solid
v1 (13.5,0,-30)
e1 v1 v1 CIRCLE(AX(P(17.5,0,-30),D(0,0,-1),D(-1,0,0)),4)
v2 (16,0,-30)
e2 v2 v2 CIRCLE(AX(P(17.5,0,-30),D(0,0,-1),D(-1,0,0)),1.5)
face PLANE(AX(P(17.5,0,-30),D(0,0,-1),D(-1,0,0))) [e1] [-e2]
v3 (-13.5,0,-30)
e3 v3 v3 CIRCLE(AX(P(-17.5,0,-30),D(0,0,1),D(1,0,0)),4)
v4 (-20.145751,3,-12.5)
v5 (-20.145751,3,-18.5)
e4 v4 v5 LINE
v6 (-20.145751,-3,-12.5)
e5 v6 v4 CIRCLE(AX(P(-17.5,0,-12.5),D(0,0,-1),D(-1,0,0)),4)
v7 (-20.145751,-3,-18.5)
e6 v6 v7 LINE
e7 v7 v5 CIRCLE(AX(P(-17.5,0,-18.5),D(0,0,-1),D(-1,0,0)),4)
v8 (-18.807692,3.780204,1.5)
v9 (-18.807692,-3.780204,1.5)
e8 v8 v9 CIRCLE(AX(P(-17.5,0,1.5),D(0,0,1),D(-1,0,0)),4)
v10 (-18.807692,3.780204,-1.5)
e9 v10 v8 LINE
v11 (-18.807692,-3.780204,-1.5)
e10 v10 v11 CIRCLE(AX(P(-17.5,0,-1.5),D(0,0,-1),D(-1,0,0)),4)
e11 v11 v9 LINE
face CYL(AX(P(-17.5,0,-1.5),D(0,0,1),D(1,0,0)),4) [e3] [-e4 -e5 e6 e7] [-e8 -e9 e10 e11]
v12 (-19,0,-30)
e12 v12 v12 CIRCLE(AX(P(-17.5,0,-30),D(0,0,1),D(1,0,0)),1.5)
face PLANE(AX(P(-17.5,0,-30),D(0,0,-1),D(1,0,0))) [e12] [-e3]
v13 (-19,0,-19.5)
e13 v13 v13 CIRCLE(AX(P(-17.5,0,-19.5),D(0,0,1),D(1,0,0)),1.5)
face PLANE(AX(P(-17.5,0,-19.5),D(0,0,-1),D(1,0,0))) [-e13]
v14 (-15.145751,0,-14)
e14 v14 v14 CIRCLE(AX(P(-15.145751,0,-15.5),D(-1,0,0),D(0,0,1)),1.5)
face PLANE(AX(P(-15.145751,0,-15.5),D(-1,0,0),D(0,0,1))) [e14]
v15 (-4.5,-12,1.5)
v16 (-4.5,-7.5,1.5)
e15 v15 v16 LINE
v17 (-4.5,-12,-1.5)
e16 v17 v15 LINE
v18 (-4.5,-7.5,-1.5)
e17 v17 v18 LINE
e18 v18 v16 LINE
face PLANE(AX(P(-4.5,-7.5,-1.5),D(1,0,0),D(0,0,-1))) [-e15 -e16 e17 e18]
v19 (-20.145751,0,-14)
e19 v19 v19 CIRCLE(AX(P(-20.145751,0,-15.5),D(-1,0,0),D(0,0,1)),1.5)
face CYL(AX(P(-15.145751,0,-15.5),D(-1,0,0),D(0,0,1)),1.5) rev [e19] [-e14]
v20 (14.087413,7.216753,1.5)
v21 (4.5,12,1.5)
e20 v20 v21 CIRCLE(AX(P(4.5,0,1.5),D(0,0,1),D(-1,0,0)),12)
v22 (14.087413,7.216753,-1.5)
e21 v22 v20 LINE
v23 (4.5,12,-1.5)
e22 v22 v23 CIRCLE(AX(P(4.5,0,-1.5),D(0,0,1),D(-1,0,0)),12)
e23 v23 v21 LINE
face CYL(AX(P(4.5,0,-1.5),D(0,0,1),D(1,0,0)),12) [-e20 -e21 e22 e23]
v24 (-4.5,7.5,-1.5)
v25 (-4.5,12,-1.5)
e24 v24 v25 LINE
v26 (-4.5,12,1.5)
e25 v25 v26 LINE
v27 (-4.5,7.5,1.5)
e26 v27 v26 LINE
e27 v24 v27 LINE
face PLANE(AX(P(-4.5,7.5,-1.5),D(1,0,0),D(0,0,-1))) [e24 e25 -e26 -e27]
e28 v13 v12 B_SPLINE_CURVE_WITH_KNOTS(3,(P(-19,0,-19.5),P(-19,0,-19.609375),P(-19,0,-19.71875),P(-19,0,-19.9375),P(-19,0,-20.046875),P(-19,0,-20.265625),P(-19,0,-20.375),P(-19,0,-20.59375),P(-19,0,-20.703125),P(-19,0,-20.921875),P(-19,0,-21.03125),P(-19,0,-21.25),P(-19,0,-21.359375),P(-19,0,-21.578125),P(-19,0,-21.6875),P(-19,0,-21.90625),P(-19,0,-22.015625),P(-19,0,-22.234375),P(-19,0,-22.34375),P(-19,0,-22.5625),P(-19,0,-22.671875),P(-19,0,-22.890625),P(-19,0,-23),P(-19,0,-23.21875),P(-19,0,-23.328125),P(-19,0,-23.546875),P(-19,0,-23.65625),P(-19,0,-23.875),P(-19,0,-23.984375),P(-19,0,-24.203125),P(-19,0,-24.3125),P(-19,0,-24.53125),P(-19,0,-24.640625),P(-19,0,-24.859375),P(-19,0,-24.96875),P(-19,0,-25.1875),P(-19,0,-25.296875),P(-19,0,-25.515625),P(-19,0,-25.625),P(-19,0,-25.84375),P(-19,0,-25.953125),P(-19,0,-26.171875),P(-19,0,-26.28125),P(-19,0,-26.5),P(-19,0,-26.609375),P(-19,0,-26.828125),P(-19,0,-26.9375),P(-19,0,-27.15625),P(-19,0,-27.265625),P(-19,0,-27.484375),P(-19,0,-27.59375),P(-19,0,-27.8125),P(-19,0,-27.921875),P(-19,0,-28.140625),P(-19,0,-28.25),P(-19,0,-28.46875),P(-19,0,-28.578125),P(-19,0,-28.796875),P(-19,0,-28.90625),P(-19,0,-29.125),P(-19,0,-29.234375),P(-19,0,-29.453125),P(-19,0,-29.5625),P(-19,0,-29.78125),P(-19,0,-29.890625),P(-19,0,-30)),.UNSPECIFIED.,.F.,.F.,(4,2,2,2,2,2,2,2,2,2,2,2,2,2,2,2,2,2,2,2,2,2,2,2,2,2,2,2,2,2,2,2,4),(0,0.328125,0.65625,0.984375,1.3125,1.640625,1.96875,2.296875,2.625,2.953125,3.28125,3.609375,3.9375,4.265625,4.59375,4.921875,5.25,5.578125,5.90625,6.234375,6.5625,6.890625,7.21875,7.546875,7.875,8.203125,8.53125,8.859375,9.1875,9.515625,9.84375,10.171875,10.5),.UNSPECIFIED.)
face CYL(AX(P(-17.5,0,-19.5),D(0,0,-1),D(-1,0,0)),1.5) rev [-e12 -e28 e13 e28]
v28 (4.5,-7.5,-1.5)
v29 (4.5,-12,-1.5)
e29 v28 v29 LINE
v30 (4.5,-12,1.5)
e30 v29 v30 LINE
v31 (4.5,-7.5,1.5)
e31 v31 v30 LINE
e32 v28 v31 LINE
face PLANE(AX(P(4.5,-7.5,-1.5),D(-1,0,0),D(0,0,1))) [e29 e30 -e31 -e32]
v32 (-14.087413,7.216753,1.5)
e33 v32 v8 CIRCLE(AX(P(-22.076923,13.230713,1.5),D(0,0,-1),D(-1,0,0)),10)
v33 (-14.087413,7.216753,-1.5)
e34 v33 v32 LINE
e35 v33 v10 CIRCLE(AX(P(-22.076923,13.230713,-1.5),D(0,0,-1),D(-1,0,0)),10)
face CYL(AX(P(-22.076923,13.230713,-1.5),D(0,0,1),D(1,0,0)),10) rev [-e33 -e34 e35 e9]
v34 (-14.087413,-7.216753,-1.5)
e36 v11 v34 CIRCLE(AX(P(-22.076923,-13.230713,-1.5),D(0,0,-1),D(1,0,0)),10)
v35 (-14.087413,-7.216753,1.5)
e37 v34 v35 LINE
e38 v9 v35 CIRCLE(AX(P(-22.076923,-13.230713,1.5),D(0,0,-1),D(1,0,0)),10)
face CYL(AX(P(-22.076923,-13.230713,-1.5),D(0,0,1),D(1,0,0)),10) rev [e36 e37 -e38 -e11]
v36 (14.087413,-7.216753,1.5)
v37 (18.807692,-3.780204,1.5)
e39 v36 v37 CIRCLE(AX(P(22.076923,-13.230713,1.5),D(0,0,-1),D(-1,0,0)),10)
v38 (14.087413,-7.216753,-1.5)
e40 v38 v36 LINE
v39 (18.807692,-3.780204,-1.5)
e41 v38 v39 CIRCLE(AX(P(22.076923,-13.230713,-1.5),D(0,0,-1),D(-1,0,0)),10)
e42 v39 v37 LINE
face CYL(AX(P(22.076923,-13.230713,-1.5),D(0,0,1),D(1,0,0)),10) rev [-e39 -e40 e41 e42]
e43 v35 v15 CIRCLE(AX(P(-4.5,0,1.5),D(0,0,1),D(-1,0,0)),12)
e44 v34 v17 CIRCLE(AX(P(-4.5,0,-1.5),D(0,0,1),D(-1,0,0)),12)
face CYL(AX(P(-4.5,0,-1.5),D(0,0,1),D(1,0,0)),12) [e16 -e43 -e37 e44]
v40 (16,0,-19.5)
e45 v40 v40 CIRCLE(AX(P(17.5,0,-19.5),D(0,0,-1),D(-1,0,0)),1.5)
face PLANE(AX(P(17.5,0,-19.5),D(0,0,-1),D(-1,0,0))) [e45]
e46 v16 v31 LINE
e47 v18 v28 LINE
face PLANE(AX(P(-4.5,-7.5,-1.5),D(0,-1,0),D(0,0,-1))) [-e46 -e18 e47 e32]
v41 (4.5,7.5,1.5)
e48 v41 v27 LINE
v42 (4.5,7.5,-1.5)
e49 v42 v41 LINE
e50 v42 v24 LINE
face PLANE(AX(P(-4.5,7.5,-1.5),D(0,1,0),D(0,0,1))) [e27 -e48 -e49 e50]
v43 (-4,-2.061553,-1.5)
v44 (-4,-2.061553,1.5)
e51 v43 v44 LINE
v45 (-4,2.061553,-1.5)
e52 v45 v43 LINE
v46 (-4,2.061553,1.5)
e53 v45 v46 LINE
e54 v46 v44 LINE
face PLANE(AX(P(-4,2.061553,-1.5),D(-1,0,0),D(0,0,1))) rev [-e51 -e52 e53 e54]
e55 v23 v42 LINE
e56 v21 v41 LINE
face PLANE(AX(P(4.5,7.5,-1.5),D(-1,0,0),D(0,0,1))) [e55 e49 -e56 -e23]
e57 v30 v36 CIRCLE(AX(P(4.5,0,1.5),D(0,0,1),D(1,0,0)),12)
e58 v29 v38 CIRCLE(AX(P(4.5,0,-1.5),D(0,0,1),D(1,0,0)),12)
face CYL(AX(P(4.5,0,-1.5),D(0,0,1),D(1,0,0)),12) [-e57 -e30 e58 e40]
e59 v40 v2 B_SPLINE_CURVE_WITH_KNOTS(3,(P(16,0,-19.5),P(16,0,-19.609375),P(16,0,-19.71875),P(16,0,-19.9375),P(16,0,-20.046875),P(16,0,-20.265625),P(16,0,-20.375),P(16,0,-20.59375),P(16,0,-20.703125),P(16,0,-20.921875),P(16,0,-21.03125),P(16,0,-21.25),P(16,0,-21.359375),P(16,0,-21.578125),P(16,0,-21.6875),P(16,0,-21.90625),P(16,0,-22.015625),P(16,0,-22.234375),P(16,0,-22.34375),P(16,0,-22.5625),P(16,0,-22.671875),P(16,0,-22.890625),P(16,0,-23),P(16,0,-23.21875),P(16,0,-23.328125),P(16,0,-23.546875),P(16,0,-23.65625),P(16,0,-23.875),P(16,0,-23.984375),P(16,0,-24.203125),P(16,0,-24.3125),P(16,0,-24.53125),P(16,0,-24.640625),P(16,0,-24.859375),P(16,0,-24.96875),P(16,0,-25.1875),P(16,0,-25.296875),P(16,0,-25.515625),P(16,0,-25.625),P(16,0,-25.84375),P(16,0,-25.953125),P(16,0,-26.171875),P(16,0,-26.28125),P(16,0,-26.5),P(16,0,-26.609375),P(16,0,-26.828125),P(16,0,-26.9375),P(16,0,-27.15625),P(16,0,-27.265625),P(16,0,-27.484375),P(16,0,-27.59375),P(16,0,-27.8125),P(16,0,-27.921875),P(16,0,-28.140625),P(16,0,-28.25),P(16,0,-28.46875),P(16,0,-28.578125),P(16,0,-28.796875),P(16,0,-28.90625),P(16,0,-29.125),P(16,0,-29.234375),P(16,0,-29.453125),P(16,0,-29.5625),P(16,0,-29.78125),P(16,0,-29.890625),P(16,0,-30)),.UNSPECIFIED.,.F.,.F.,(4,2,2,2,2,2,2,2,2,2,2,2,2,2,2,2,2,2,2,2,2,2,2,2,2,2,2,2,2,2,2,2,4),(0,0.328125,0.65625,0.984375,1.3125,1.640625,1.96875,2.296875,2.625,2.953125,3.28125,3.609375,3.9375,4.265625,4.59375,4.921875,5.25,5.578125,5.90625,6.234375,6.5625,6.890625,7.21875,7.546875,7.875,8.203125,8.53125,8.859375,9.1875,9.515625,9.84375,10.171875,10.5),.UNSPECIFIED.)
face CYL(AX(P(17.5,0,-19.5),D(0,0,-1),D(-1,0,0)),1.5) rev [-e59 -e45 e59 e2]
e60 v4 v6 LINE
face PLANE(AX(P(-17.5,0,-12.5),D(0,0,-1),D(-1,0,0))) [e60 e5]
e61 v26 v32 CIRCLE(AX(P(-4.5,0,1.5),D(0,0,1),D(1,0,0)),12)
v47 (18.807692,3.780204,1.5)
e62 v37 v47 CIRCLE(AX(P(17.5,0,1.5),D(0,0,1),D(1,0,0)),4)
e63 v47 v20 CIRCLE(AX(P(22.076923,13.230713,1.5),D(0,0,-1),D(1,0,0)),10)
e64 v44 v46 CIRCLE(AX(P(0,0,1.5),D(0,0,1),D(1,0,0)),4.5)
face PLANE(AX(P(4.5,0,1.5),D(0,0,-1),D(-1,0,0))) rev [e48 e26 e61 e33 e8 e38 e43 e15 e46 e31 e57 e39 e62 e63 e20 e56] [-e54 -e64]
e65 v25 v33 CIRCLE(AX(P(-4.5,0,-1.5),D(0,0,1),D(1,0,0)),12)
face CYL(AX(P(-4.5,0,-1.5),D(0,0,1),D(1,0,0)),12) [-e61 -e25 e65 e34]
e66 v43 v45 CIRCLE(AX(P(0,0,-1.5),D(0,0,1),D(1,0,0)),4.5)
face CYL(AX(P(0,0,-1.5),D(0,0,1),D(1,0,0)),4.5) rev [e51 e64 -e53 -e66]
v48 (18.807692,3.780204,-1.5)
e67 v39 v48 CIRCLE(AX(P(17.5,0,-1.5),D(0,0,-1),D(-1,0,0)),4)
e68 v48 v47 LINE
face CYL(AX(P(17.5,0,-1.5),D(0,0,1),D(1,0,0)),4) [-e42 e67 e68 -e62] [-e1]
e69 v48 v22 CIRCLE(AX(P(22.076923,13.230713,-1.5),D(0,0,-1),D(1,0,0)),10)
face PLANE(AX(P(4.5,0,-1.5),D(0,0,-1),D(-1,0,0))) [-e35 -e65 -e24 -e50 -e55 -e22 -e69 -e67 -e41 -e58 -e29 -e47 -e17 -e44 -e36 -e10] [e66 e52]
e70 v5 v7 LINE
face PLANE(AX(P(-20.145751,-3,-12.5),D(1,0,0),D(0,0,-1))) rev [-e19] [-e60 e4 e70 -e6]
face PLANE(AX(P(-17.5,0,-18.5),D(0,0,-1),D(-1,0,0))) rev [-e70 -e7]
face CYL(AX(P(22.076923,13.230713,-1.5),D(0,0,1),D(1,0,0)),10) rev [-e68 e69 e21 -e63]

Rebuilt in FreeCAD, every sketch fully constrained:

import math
import FreeCAD as App
import Part
import Sketcher
from FreeCAD import Vector

doc = App.newDocument("Part")
params = doc.addObject("Spreadsheet::Sheet", "Params")
for row, (alias, value) in enumerate([
    ("sketch1_radius", "12 mm"),
    ("sketch1_radius2", "10 mm"),
    ("sketch1_radius3", "4 mm"),
    ("sketch1_width", "9 mm"),
    ("sketch1_height", "4.5 mm"),
    ("pad1_length", "3 mm"),
    ("sketch2_radius", "4.5 mm"),
    ("sketch3_diameter", "8 mm"),
    ("pad2_length", "28.5 mm"),
    ("sketch4_diameter", "3 mm"),
    ("pocket2_length", "10.5 mm"),
    ("sketch5_radius", "4 mm"),
    ("sketch5_height", "6 mm"),
    ("pocket3_length", "6 mm"),
    ("sketch6_diameter", "3 mm"),
    ("pocket4_length", "5 mm"),
], start=1):
    params.set(f"A{row}", alias)
    params.set(f"B{row}", "=" + value)
    params.setAlias(f"B{row}", alias)

body = doc.addObject("PartDesign::Body", "Body")

sketch1 = body.newObject("Sketcher::SketchObject", "Sketch")
sketch1.AttachmentSupport = (doc.getObject("XY_Plane"), [""])
sketch1.MapMode = "FlatFace"
sketch1.addGeometry(Part.LineSegment(Vector(4.5, 7.5, 0), Vector(-4.5, 7.5, 0)), False)
sketch1.addGeometry(Part.LineSegment(Vector(-4.5, 7.5, 0), Vector(-4.5, 12, 0)), False)
sketch1.addGeometry(Part.ArcOfCircle(Part.Circle(Vector(-4.5, 0, 0), Vector(0, 0, 1), 12), math.radians(90), math.radians(143)), False)
sketch1.addGeometry(Part.ArcOfCircle(Part.Circle(Vector(-22.1, 13.2, 0), Vector(0, 0, 1), 10), math.radians(-71), math.radians(-37)), False)
sketch1.addGeometry(Part.ArcOfCircle(Part.Circle(Vector(-17.5, 0, 0), Vector(0, 0, 1), 4), math.radians(109), math.radians(251)), False)
sketch1.addGeometry(Part.ArcOfCircle(Part.Circle(Vector(-22.1, -13.2, 0), Vector(0, 0, 1), 10), math.radians(37), math.radians(71)), False)
sketch1.addGeometry(Part.ArcOfCircle(Part.Circle(Vector(-4.5, 0, 0), Vector(0, 0, 1), 12), math.radians(-143), math.radians(-90)), False)
sketch1.addGeometry(Part.LineSegment(Vector(-4.5, -12, 0), Vector(-4.5, -7.5, 0)), False)
sketch1.addGeometry(Part.LineSegment(Vector(-4.5, -7.5, 0), Vector(4.5, -7.5, 0)), False)
sketch1.addGeometry(Part.LineSegment(Vector(4.5, -7.5, 0), Vector(4.5, -12, 0)), False)
sketch1.addGeometry(Part.ArcOfCircle(Part.Circle(Vector(4.5, 0, 0), Vector(0, 0, 1), 12), math.radians(-90), math.radians(-37)), False)
sketch1.addGeometry(Part.ArcOfCircle(Part.Circle(Vector(22.1, -13.2, 0), Vector(0, 0, 1), 10), math.radians(109), math.radians(143)), False)
sketch1.addGeometry(Part.ArcOfCircle(Part.Circle(Vector(17.5, 0, 0), Vector(0, 0, 1), 4), math.radians(-71), math.radians(71)), False)
sketch1.addGeometry(Part.ArcOfCircle(Part.Circle(Vector(22.1, 13.2, 0), Vector(0, 0, 1), 10), math.radians(-143), math.radians(-109)), False)
sketch1.addGeometry(Part.ArcOfCircle(Part.Circle(Vector(4.5, 0, 0), Vector(0, 0, 1), 12), math.radians(37), math.radians(90)), False)
sketch1.addGeometry(Part.LineSegment(Vector(4.5, 12, 0), Vector(4.5, 7.5, 0)), False)
sketch1.addConstraint(Sketcher.Constraint("Coincident", 0, 2, 1, 1))
sketch1.addConstraint(Sketcher.Constraint("Coincident", 1, 2, 2, 1))
sketch1.addConstraint(Sketcher.Constraint("Tangent", 2, 2, 3, 2))
sketch1.addConstraint(Sketcher.Constraint("Tangent", 3, 1, 4, 1))
sketch1.addConstraint(Sketcher.Constraint("Tangent", 4, 2, 5, 2))
sketch1.addConstraint(Sketcher.Constraint("Tangent", 5, 1, 6, 1))
sketch1.addConstraint(Sketcher.Constraint("Coincident", 6, 2, 7, 1))
sketch1.addConstraint(Sketcher.Constraint("Coincident", 7, 2, 8, 1))
sketch1.addConstraint(Sketcher.Constraint("Coincident", 8, 2, 9, 1))
sketch1.addConstraint(Sketcher.Constraint("Coincident", 9, 2, 10, 1))
sketch1.addConstraint(Sketcher.Constraint("Tangent", 10, 2, 11, 2))
sketch1.addConstraint(Sketcher.Constraint("Tangent", 11, 1, 12, 1))
sketch1.addConstraint(Sketcher.Constraint("Tangent", 12, 2, 13, 2))
sketch1.addConstraint(Sketcher.Constraint("Tangent", 13, 1, 14, 1))
sketch1.addConstraint(Sketcher.Constraint("Coincident", 14, 2, 15, 1))
sketch1.addConstraint(Sketcher.Constraint("Coincident", 15, 2, 0, 1))
sketch1.addConstraint(Sketcher.Constraint("Horizontal", 0))
sketch1.addConstraint(Sketcher.Constraint("Vertical", 1))
sketch1.addConstraint(Sketcher.Constraint("Vertical", 7))
sketch1.addConstraint(Sketcher.Constraint("Horizontal", 8))
sketch1.addConstraint(Sketcher.Constraint("Vertical", 9))
sketch1.addConstraint(Sketcher.Constraint("Vertical", 15))
sketch1.addConstraint(Sketcher.Constraint("Coincident", 6, 3, 2, 3))
sketch1.addConstraint(Sketcher.Constraint("Coincident", 14, 3, 10, 3))
sketch1.addConstraint(Sketcher.Constraint("Equal", 3, 5))
sketch1.addConstraint(Sketcher.Constraint("Equal", 2, 6))
sketch1.addConstraint(Sketcher.Constraint("Equal", 6, 10))
sketch1.addConstraint(Sketcher.Constraint("Equal", 5, 11))
sketch1.addConstraint(Sketcher.Constraint("Equal", 4, 12))
sketch1.addConstraint(Sketcher.Constraint("Equal", 11, 13))
sketch1.addConstraint(Sketcher.Constraint("Equal", 10, 14))
sketch1.addConstraint(Sketcher.Constraint("Symmetric", 2, 3, 10, 3, -1, 1))
sketch1.addConstraint(Sketcher.Constraint("Symmetric", 4, 3, 12, 3, -1, 1))
sketch1.addConstraint(Sketcher.Constraint("Symmetric", 0, 2, 8, 2, -1, 1))
sketch1.addConstraint(Sketcher.Constraint("Symmetric", 5, 3, 11, 3, -2))
sketch1.addConstraint(Sketcher.Constraint("Vertical", 6, 3, 0, 2))
sketch1.addConstraint(Sketcher.Constraint("Vertical", 1, 2, 6, 2))
sketch1.addConstraint(Sketcher.Constraint("Vertical", 9, 2, 14, 2))
sketch1.addConstraint(Sketcher.Constraint("Radius", 2, 12.0))
sketch1.addConstraint(Sketcher.Constraint("Radius", 3, 10.0))
sketch1.addConstraint(Sketcher.Constraint("Radius", 4, 4.0))
sketch1.addConstraint(Sketcher.Constraint("DistanceX", 0, 2, 0, 1, 9.0))
sketch1.addConstraint(Sketcher.Constraint("DistanceY", 1, 1, 1, 2, 4.5))
sketch1.addConstraint(Sketcher.Constraint("DistanceX", 4, 3, 2, 3, 13.0))
sketch1.setExpression("Constraints[38]", "Params.sketch1_radius")
sketch1.setExpression("Constraints[39]", "Params.sketch1_radius2")
sketch1.setExpression("Constraints[40]", "Params.sketch1_radius3")
sketch1.setExpression("Constraints[41]", "Params.sketch1_width")
sketch1.setExpression("Constraints[42]", "Params.sketch1_height")
pad1 = body.newObject("PartDesign::Pad", "Pad")
pad1.Profile = sketch1
pad1.setExpression("Length", "Params.pad1_length")
pad1.Midplane = True

sketch2 = body.newObject("Sketcher::SketchObject", "Sketch001")
sketch2.AttachmentSupport = (doc.getObject("XY_Plane"), [""])
sketch2.MapMode = "FlatFace"
sketch2.AttachmentOffset = App.Placement(Vector(0, 0, 1.5), App.Rotation())
sketch2.addGeometry(Part.LineSegment(Vector(-4, 2.1, 0), Vector(-4, -2.1, 0)), False)
sketch2.addGeometry(Part.ArcOfCircle(Part.Circle(Vector(0, 0, 0), Vector(0, 0, 1), 4.5), math.radians(-153), math.radians(153)), False)
sketch2.addConstraint(Sketcher.Constraint("Coincident", 0, 1, 1, 2))
sketch2.addConstraint(Sketcher.Constraint("Coincident", 1, 1, 0, 2))
sketch2.addConstraint(Sketcher.Constraint("Vertical", 0))
sketch2.addConstraint(Sketcher.Constraint("Coincident", 1, 3, -1, 1))
sketch2.addConstraint(Sketcher.Constraint("Radius", 1, 4.5))
sketch2.addConstraint(Sketcher.Constraint("DistanceX", 0, 1, -1, 1, 4.0))
sketch2.setExpression("Constraints[4]", "Params.sketch2_radius")
pocket1 = body.newObject("PartDesign::Pocket", "Pocket")
pocket1.Profile = sketch2
pocket1.Type = "ThroughAll"

sketch3 = body.newObject("Sketcher::SketchObject", "Sketch002")
sketch3.AttachmentSupport = (doc.getObject("XY_Plane"), [""])
sketch3.MapMode = "FlatFace"
sketch3.AttachmentOffset = App.Placement(Vector(0, 0, -1.5), App.Rotation())
sketch3.addGeometry(Part.Circle(Vector(17.5, 0, 0), Vector(0, 0, 1), 4), False)
sketch3.addConstraint(Sketcher.Constraint("PointOnObject", 0, 3, -1))
sketch3.addConstraint(Sketcher.Constraint("Diameter", 0, 8.0))
sketch3.addConstraint(Sketcher.Constraint("DistanceX", -1, 1, 0, 3, 17.5))
sketch3.setExpression("Constraints[1]", "Params.sketch3_diameter")
pad2 = body.newObject("PartDesign::Pad", "Pad001")
pad2.Profile = sketch3
pad2.setExpression("Length", "Params.pad2_length")
pad2.Reversed = True

sketch4 = body.newObject("Sketcher::SketchObject", "Sketch003")
sketch4.AttachmentSupport = (doc.getObject("XY_Plane"), [""])
sketch4.MapMode = "FlatFace"
sketch4.AttachmentOffset = App.Placement(Vector(0, 0, -30), App.Rotation())
sketch4.addGeometry(Part.Circle(Vector(17.5, 0, 0), Vector(0, 0, 1), 1.5), False)
sketch4.addConstraint(Sketcher.Constraint("PointOnObject", 0, 3, -1))
sketch4.addConstraint(Sketcher.Constraint("Diameter", 0, 3.0))
sketch4.addConstraint(Sketcher.Constraint("DistanceX", -1, 1, 0, 3, 17.5))
sketch4.setExpression("Constraints[1]", "Params.sketch4_diameter")
pocket2 = body.newObject("PartDesign::Pocket", "Pocket001")
pocket2.Profile = sketch4
pocket2.setExpression("Length", "Params.pocket2_length")
pocket2.Reversed = True
doc.recompute()

mirrored = body.newObject("PartDesign::Mirrored", "Mirrored")
mirrored.Originals = [pad2, pocket2]
mirrored.MirrorPlane = (doc.getObject("YZ_Plane"), [""])
body.Tip = mirrored

sketch5 = body.newObject("Sketcher::SketchObject", "Sketch004")
sketch5.AttachmentSupport = (doc.getObject("XY_Plane"), [""])
sketch5.MapMode = "FlatFace"
sketch5.AttachmentOffset = App.Placement(Vector(0, 0, -15.5), App.Rotation())
sketch5.addGeometry(Part.LineSegment(Vector(-20.1, 3, 0), Vector(-20.1, -3, 0)), False)
sketch5.addGeometry(Part.ArcOfCircle(Part.Circle(Vector(-17.5, 0, 0), Vector(0, 0, 1), 4), math.radians(131), math.radians(229)), False)
sketch5.addConstraint(Sketcher.Constraint("Coincident", 0, 1, 1, 1))
sketch5.addConstraint(Sketcher.Constraint("Coincident", 1, 2, 0, 2))
sketch5.addConstraint(Sketcher.Constraint("Vertical", 0))
sketch5.addConstraint(Sketcher.Constraint("PointOnObject", 1, 3, -1))
sketch5.addConstraint(Sketcher.Constraint("Radius", 1, 4.0))
sketch5.addConstraint(Sketcher.Constraint("DistanceY", 0, 2, 0, 1, 6.0))
sketch5.addConstraint(Sketcher.Constraint("DistanceX", 1, 3, -1, 1, 17.5))
sketch5.setExpression("Constraints[4]", "Params.sketch5_radius")
sketch5.setExpression("Constraints[5]", "Params.sketch5_height")
pocket3 = body.newObject("PartDesign::Pocket", "Pocket002")
pocket3.Profile = sketch5
pocket3.setExpression("Length", "Params.pocket3_length")
pocket3.Midplane = True

sketch6 = body.newObject("Sketcher::SketchObject", "Sketch005")
sketch6.AttachmentSupport = (doc.getObject("YZ_Plane"), [""])
sketch6.MapMode = "FlatFace"
sketch6.AttachmentOffset = App.Placement(Vector(0, 0, -20.145751), App.Rotation())
sketch6.addGeometry(Part.Circle(Vector(0, -15.5, 0), Vector(0, 0, 1), 1.5), False)
sketch6.addConstraint(Sketcher.Constraint("PointOnObject", 0, 3, -2))
sketch6.addConstraint(Sketcher.Constraint("Diameter", 0, 3.0))
sketch6.addConstraint(Sketcher.Constraint("DistanceY", 0, 3, -1, 1, 15.5))
sketch6.setExpression("Constraints[1]", "Params.sketch6_diameter")
pocket4 = body.newObject("PartDesign::Pocket", "Pocket003")
pocket4.Profile = sketch6
pocket4.setExpression("Length", "Params.pocket4_length")
pocket4.Reversed = True

doc.recompute()
